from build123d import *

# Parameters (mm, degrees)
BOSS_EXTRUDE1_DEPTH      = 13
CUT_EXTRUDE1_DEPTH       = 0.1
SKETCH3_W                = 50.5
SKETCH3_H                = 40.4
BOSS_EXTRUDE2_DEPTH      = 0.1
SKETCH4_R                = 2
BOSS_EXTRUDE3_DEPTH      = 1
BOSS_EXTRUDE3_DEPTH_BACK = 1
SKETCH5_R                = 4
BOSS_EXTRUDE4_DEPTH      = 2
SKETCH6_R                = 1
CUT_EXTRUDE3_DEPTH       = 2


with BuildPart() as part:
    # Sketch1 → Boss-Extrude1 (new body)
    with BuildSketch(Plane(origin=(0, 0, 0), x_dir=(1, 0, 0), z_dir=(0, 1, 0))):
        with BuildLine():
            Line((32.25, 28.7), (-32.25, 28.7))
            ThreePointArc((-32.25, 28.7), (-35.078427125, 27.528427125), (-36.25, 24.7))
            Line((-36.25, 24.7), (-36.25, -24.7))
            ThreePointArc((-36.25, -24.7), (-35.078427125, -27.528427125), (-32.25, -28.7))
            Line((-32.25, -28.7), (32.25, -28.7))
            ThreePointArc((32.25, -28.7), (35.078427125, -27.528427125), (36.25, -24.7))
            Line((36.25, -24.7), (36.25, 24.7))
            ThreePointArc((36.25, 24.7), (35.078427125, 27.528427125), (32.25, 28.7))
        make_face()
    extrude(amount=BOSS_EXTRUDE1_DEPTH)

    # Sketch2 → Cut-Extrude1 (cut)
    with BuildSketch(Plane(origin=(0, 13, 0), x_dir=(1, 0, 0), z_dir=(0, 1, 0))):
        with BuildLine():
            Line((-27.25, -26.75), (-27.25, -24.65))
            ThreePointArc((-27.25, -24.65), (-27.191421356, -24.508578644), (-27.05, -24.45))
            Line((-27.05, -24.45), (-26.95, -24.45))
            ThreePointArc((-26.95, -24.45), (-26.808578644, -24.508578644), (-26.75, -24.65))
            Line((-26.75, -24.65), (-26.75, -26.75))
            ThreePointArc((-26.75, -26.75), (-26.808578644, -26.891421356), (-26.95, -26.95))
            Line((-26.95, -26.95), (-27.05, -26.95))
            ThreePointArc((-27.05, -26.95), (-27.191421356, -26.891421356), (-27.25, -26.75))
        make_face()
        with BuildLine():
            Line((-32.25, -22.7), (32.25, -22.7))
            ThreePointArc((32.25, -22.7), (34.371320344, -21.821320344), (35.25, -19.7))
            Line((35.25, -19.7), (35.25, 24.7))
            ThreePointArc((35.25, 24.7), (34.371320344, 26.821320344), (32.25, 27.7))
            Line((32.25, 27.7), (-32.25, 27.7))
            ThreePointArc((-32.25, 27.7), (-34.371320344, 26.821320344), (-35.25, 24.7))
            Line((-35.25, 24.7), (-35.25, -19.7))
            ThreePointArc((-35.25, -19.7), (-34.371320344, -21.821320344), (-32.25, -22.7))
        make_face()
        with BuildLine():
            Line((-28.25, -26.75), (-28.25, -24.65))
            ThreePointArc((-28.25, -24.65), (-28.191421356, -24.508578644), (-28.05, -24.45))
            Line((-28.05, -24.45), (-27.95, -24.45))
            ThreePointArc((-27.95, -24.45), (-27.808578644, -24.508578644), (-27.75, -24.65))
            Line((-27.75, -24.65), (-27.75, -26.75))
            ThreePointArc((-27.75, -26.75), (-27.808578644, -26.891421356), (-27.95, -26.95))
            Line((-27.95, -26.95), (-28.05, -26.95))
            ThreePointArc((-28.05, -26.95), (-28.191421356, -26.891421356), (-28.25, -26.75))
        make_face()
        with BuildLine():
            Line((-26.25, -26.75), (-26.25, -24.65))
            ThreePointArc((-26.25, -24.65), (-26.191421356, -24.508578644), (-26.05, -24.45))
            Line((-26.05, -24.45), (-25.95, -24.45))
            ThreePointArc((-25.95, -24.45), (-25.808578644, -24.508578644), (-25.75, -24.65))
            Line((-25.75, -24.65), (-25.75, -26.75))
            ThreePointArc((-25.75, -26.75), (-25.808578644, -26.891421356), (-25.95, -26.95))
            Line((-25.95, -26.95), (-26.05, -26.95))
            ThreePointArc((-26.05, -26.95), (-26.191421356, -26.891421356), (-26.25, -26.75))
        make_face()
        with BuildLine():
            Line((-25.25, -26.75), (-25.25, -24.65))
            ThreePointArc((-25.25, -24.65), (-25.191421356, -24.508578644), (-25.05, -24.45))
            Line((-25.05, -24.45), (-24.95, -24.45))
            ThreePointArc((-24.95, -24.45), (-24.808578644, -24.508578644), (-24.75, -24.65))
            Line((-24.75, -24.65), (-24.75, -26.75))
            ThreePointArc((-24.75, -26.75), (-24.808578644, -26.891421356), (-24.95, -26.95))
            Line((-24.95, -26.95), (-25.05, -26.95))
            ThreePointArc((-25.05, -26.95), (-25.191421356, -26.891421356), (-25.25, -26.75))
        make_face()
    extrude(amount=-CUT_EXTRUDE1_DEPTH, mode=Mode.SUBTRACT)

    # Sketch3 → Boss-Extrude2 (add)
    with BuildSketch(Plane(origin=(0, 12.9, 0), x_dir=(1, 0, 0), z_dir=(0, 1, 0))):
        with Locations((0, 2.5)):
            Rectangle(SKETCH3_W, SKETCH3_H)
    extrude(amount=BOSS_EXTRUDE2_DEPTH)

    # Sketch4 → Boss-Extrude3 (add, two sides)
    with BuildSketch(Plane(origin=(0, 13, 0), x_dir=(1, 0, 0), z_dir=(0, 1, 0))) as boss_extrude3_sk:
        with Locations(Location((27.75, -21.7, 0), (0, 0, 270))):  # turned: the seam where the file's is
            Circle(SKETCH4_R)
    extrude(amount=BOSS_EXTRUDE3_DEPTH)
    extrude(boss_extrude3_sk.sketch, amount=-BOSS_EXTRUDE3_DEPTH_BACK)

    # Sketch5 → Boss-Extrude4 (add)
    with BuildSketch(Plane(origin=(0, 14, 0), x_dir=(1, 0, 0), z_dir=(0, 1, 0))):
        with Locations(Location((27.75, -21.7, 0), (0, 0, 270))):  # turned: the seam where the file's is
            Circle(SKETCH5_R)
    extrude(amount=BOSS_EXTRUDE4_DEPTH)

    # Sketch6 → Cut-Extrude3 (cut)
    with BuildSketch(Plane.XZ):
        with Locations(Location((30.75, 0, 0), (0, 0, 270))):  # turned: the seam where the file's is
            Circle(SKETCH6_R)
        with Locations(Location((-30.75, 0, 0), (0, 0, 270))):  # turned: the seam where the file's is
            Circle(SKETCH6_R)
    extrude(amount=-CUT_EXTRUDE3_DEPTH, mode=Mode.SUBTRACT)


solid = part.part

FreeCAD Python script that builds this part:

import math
import FreeCAD as App
import Part
import Sketcher
from FreeCAD import Vector
Q = App.Units.Quantity


def add_polygon(sketch, points):
    """Adds a closed chain of lines whose ends are joined by coincident constraints."""
    first, n = sketch.GeometryCount, len(points)
    for a, b in zip(points, points[1:] + points[:1]):
        sketch.addGeometry(Part.LineSegment(App.Vector(*a, 0), App.Vector(*b, 0)), False)
    for i in range(n):
        sketch.addConstraint(Sketcher.Constraint("Coincident", first + i, 2, first + (i + 1) % n, 1))

doc = App.newDocument("Part")
params = doc.addObject("Spreadsheet::Sheet", "Params")
for row, (alias, value) in enumerate([
    ("sketch1_radius", "4 mm"),
    ("sketch1_width", "64.5 mm"),
    ("sketch1_height", "49.4 mm"),
    ("pad1_length", "13 mm"),
    ("sketch2_radius", "3 mm"),
    ("sketch2_radius2", "0.2 mm"),
    ("sketch2_width", "0.1 mm"),
    ("sketch2_width2", "64.5 mm"),
    ("sketch2_height", "2.1 mm"),
    ("pocket1_length", "0.1 mm"),
    ("sketch3_width", "50.5 mm"),
    ("sketch3_height", "40.4 mm"),
    ("pad2_length", "0.1 mm"),
    ("sketch4_diameter", "4 mm"),
    ("pad3_length", "1 mm"),
    ("pad3_length2", "1 mm"),
    ("sketch5_diameter", "8 mm"),
    ("pad4_length", "2 mm"),
    ("sketch6_diameter", "2 mm"),
    ("pocket2_length", "2 mm"),
], start=1):
    params.set(f"A{row}", alias)
    params.set(f"B{row}", "=" + value)
    params.setAlias(f"B{row}", alias)

body = doc.addObject("PartDesign::Body", "Body")

# Sketch on XZ plane
sketch1 = body.newObject("Sketcher::SketchObject", "Sketch")
sketch1.AttachmentSupport = (doc.getObject("XZ_Plane"), [""])
sketch1.MapMode = "FlatFace"
sketch1.addGeometry([
    Part.LineSegment(Vector(32.2, -28.7, 0), Vector(-32.2, -28.7, 0)),  # 0
    Part.ArcOfCircle(Part.Circle(Vector(-32.3, -24.7, 0), Vector(0, 0, 1), 4), math.radians(180), math.radians(270)),  # 1
    Part.LineSegment(Vector(-36.2, -24.7, 0), Vector(-36.2, 24.7, 0)),  # 2
    Part.ArcOfCircle(Part.Circle(Vector(-32.3, 24.7, 0), Vector(0, 0, 1), 4), math.radians(90), math.radians(180)),  # 3
    Part.LineSegment(Vector(-32.2, 28.7, 0), Vector(32.2, 28.7, 0)),  # 4
    Part.ArcOfCircle(Part.Circle(Vector(32.3, 24.7, 0), Vector(0, 0, 1), 4), math.radians(0), math.radians(90)),  # 5
    Part.LineSegment(Vector(36.2, 24.7, 0), Vector(36.2, -24.7, 0)),  # 6
    Part.ArcOfCircle(Part.Circle(Vector(32.3, -24.7, 0), Vector(0, 0, 1), 4), math.radians(-90), math.radians(0)),  # 7
], False)
sketch1.addConstraint([
    Sketcher.Constraint("Tangent", 0, 2, 1, 2),
    Sketcher.Constraint("Tangent", 1, 1, 2, 1),
    Sketcher.Constraint("Tangent", 2, 2, 3, 2),
    Sketcher.Constraint("Tangent", 3, 1, 4, 1),
    Sketcher.Constraint("Tangent", 4, 2, 5, 2),
    Sketcher.Constraint("Tangent", 5, 1, 6, 1),
    Sketcher.Constraint("Tangent", 6, 2, 7, 2),
    Sketcher.Constraint("Tangent", 7, 1, 0, 1),
    Sketcher.Constraint("Horizontal", 0),
    Sketcher.Constraint("Vertical", 2),
    Sketcher.Constraint("Horizontal", 4),
    Sketcher.Constraint("Vertical", 6),
    Sketcher.Constraint("Equal", 1, 3),
    Sketcher.Constraint("Equal", 3, 5),
    Sketcher.Constraint("Equal", 5, 7),
    Sketcher.Constraint("Symmetric", 1, 3, 5, 3, -1, 1),
    Sketcher.Constraint("Radius", 1, Q("4 mm")),
    Sketcher.Constraint("DistanceX", 0, 2, 0, 1, Q("64.5 mm")),
    Sketcher.Constraint("DistanceY", 2, 1, 2, 2, Q("49.4 mm")),
])
sketch1.setExpression("Constraints[16]", "Params.sketch1_radius")
sketch1.setExpression("Constraints[17]", "Params.sketch1_width")
sketch1.setExpression("Constraints[18]", "Params.sketch1_height")
pad1 = body.newObject("PartDesign::Pad", "Pad")
pad1.Profile = sketch1
pad1.setExpression("Length", "Params.pad1_length")
pad1.Reversed = True

# Sketch on XZ plane
sketch2 = body.newObject("Sketcher::SketchObject", "Sketch001")
sketch2.AttachmentSupport = (doc.getObject("XZ_Plane"), [""])
sketch2.MapMode = "FlatFace"
sketch2.AttachmentOffset = App.Placement(Vector(0, 0, -13), App.Rotation())
sketch2.addGeometry([
    Part.LineSegment(Vector(-27.25, 24.65, 0), Vector(-27.25, 26.75, 0)),  # 0
    Part.ArcOfCircle(Part.Circle(Vector(-27.05, 26.75, 0), Vector(0, 0, 1), 0.2), math.radians(90), math.radians(180)),  # 1
    Part.LineSegment(Vector(-27.05, 26.95, 0), Vector(-26.95, 26.95, 0)),  # 2
    Part.ArcOfCircle(Part.Circle(Vector(-26.95, 26.75, 0), Vector(0, 0, 1), 0.2), math.radians(0), math.radians(90)),  # 3
    Part.LineSegment(Vector(-26.75, 26.75, 0), Vector(-26.75, 24.65, 0)),  # 4
    Part.ArcOfCircle(Part.Circle(Vector(-26.95, 24.65, 0), Vector(0, 0, 1), 0.2), math.radians(-90), math.radians(0)),  # 5
    Part.LineSegment(Vector(-26.95, 24.45, 0), Vector(-27.05, 24.45, 0)),  # 6
    Part.ArcOfCircle(Part.Circle(Vector(-27.05, 24.65, 0), Vector(0, 0, 1), 0.2), math.radians(-180), math.radians(-90)),  # 7
    Part.LineSegment(Vector(-32.25, 22.7, 0), Vector(32.25, 22.7, 0)),  # 8
    Part.ArcOfCircle(Part.Circle(Vector(32.25, 19.7, 0), Vector(0, 0, 1), 3), math.radians(0), math.radians(90)),  # 9
    Part.LineSegment(Vector(35.25, 19.7, 0), Vector(35.25, -24.7, 0)),  # 10
    Part.ArcOfCircle(Part.Circle(Vector(32.25, -24.7, 0), Vector(0, 0, 1), 3), math.radians(-90), math.radians(0)),  # 11
    Part.LineSegment(Vector(32.25, -27.7, 0), Vector(-32.25, -27.7, 0)),  # 12
    Part.ArcOfCircle(Part.Circle(Vector(-32.25, -24.7, 0), Vector(0, 0, 1), 3), math.radians(180), math.radians(270)),  # 13
    Part.LineSegment(Vector(-35.25, -24.7, 0), Vector(-35.25, 19.7, 0)),  # 14
    Part.ArcOfCircle(Part.Circle(Vector(-32.25, 19.7, 0), Vector(0, 0, 1), 3), math.radians(90), math.radians(180)),  # 15
    Part.LineSegment(Vector(-28.25, 24.65, 0), Vector(-28.25, 26.75, 0)),  # 16
    Part.ArcOfCircle(Part.Circle(Vector(-28.05, 26.75, 0), Vector(0, 0, 1), 0.2), math.radians(90), math.radians(180)),  # 17
    Part.LineSegment(Vector(-28.05, 26.95, 0), Vector(-27.95, 26.95, 0)),  # 18
    Part.ArcOfCircle(Part.Circle(Vector(-27.95, 26.75, 0), Vector(0, 0, 1), 0.2), math.radians(0), math.radians(90)),  # 19
    Part.LineSegment(Vector(-27.75, 26.75, 0), Vector(-27.75, 24.65, 0)),  # 20
    Part.ArcOfCircle(Part.Circle(Vector(-27.95, 24.65, 0), Vector(0, 0, 1), 0.2), math.radians(-90), math.radians(0)),  # 21
    Part.LineSegment(Vector(-27.95, 24.45, 0), Vector(-28.05, 24.45, 0)),  # 22
    Part.ArcOfCircle(Part.Circle(Vector(-28.05, 24.65, 0), Vector(0, 0, 1), 0.2), math.radians(-180), math.radians(-90)),  # 23
    Part.LineSegment(Vector(-26.25, 24.65, 0), Vector(-26.25, 26.75, 0)),  # 24
    Part.ArcOfCircle(Part.Circle(Vector(-26.05, 26.75, 0), Vector(0, 0, 1), 0.2), math.radians(90), math.radians(180)),  # 25
    Part.LineSegment(Vector(-26.05, 26.95, 0), Vector(-25.95, 26.95, 0)),  # 26
    Part.ArcOfCircle(Part.Circle(Vector(-25.95, 26.75, 0), Vector(0, 0, 1), 0.2), math.radians(0), math.radians(90)),  # 27
    Part.LineSegment(Vector(-25.75, 26.75, 0), Vector(-25.75, 24.65, 0)),  # 28
    Part.ArcOfCircle(Part.Circle(Vector(-25.95, 24.65, 0), Vector(0, 0, 1), 0.2), math.radians(-90), math.radians(0)),  # 29
    Part.LineSegment(Vector(-25.95, 24.45, 0), Vector(-26.05, 24.45, 0)),  # 30
    Part.ArcOfCircle(Part.Circle(Vector(-26.05, 24.65, 0), Vector(0, 0, 1), 0.2), math.radians(-180), math.radians(-90)),  # 31
    Part.LineSegment(Vector(-25.25, 24.65, 0), Vector(-25.25, 26.75, 0)),  # 32
    Part.ArcOfCircle(Part.Circle(Vector(-25.05, 26.75, 0), Vector(0, 0, 1), 0.2), math.radians(90), math.radians(180)),  # 33
    Part.LineSegment(Vector(-25.05, 26.95, 0), Vector(-24.95, 26.95, 0)),  # 34
    Part.ArcOfCircle(Part.Circle(Vector(-24.95, 26.75, 0), Vector(0, 0, 1), 0.2), math.radians(0), math.radians(90)),  # 35
    Part.LineSegment(Vector(-24.75, 26.75, 0), Vector(-24.75, 24.65, 0)),  # 36
    Part.ArcOfCircle(Part.Circle(Vector(-24.95, 24.65, 0), Vector(0, 0, 1), 0.2), math.radians(-90), math.radians(0)),  # 37
    Part.LineSegment(Vector(-24.95, 24.45, 0), Vector(-25.05, 24.45, 0)),  # 38
    Part.ArcOfCircle(Part.Circle(Vector(-25.05, 24.65, 0), Vector(0, 0, 1), 0.2), math.radians(-180), math.radians(-90)),  # 39
], False)
sketch2.addConstraint([
    Sketcher.Constraint("Tangent", 0, 2, 1, 2),
    Sketcher.Constraint("Tangent", 1, 1, 2, 1),
    Sketcher.Constraint("Tangent", 2, 2, 3, 2),
    Sketcher.Constraint("Tangent", 3, 1, 4, 1),
    Sketcher.Constraint("Tangent", 4, 2, 5, 2),
    Sketcher.Constraint("Tangent", 5, 1, 6, 1),
    Sketcher.Constraint("Tangent", 6, 2, 7, 2),
    Sketcher.Constraint("Tangent", 7, 1, 0, 1),
    Sketcher.Constraint("Tangent", 8, 2, 9, 2),
    Sketcher.Constraint("Tangent", 9, 1, 10, 1),
    Sketcher.Constraint("Tangent", 10, 2, 11, 2),
    Sketcher.Constraint("Tangent", 11, 1, 12, 1),
    Sketcher.Constraint("Tangent", 12, 2, 13, 2),
    Sketcher.Constraint("Tangent", 13, 1, 14, 1),
    Sketcher.Constraint("Tangent", 14, 2, 15, 2),
    Sketcher.Constraint("Tangent", 15, 1, 8, 1),
    Sketcher.Constraint("Tangent", 16, 2, 17, 2),
    Sketcher.Constraint("Tangent", 17, 1, 18, 1),
    Sketcher.Constraint("Tangent", 18, 2, 19, 2),
    Sketcher.Constraint("Tangent", 19, 1, 20, 1),
    Sketcher.Constraint("Tangent", 20, 2, 21, 2),
    Sketcher.Constraint("Tangent", 21, 1, 22, 1),
    Sketcher.Constraint("Tangent", 22, 2, 23, 2),
    Sketcher.Constraint("Tangent", 23, 1, 16, 1),
    Sketcher.Constraint("Tangent", 24, 2, 25, 2),
    Sketcher.Constraint("Tangent", 25, 1, 26, 1),
    Sketcher.Constraint("Tangent", 26, 2, 27, 2),
    Sketcher.Constraint("Tangent", 27, 1, 28, 1),
    Sketcher.Constraint("Tangent", 28, 2, 29, 2),
    Sketcher.Constraint("Tangent", 29, 1, 30, 1),
    Sketcher.Constraint("Tangent", 30, 2, 31, 2),
    Sketcher.Constraint("Tangent", 31, 1, 24, 1),
    Sketcher.Constraint("Tangent", 32, 2, 33, 2),
    Sketcher.Constraint("Tangent", 33, 1, 34, 1),
    Sketcher.Constraint("Tangent", 34, 2, 35, 2),
    Sketcher.Constraint("Tangent", 35, 1, 36, 1),
    Sketcher.Constraint("Tangent", 36, 2, 37, 2),
    Sketcher.Constraint("Tangent", 37, 1, 38, 1),
    Sketcher.Constraint("Tangent", 38, 2, 39, 2),
    Sketcher.Constraint("Tangent", 39, 1, 32, 1),
    Sketcher.Constraint("Vertical", 0),
    Sketcher.Constraint("Horizontal", 2),
    Sketcher.Constraint("Vertical", 4),
    Sketcher.Constraint("Horizontal", 6),
    Sketcher.Constraint("Horizontal", 8),
    Sketcher.Constraint("Vertical", 10),
    Sketcher.Constraint("Horizontal", 12),
    Sketcher.Constraint("Vertical", 14),
    Sketcher.Constraint("Vertical", 16),
    Sketcher.Constraint("Horizontal", 18),
    Sketcher.Constraint("Vertical", 20),
    Sketcher.Constraint("Horizontal", 22),
    Sketcher.Constraint("Vertical", 24),
    Sketcher.Constraint("Horizontal", 26),
    Sketcher.Constraint("Vertical", 28),
    Sketcher.Constraint("Horizontal", 30),
    Sketcher.Constraint("Vertical", 32),
    Sketcher.Constraint("Horizontal", 34),
    Sketcher.Constraint("Vertical", 36),
    Sketcher.Constraint("Horizontal", 38),
    Sketcher.Constraint("Equal", 1, 3),
    Sketcher.Constraint("Equal", 3, 5),
    Sketcher.Constraint("Equal", 5, 7),
    Sketcher.Constraint("Equal", 9, 11),
    Sketcher.Constraint("Equal", 11, 13),
    Sketcher.Constraint("Equal", 13, 15),
    Sketcher.Constraint("Equal", 7, 17),
    Sketcher.Constraint("Equal", 17, 19),
    Sketcher.Constraint("Equal", 19, 21),
    Sketcher.Constraint("Equal", 21, 23),
    Sketcher.Constraint("Equal", 23, 25),
    Sketcher.Constraint("Equal", 25, 27),
    Sketcher.Constraint("Equal", 27, 29),
    Sketcher.Constraint("Equal", 29, 31),
    Sketcher.Constraint("Equal", 31, 33),
    Sketcher.Constraint("Equal", 33, 35),
    Sketcher.Constraint("Equal", 35, 37),
    Sketcher.Constraint("Equal", 37, 39),
    Sketcher.Constraint("Horizontal", 3, 3, 17, 3),
    Sketcher.Constraint("Horizontal", 7, 3, 21, 3),
    Sketcher.Constraint("Horizontal", 19, 3, 25, 3),
    Sketcher.Constraint("Horizontal", 23, 3, 29, 3),
    Sketcher.Constraint("Horizontal", 27, 3, 33, 3),
    Sketcher.Constraint("Horizontal", 31, 3, 37, 3),
    Sketcher.Constraint("Equal", 6, 18),
    Sketcher.Constraint("Equal", 22, 26),
    Sketcher.Constraint("Equal", 30, 34),
    Sketcher.Constraint("Radius", 9, Q("3 mm")),
    Sketcher.Constraint("Radius", 1, Q("0.2 mm")),
    Sketcher.Constraint("DistanceX", 2, 1, 2, 2, Q("0.1 mm")),
    Sketcher.Constraint("DistanceX", 8, 1, 8, 2, Q("64.5 mm")),
    Sketcher.Constraint("DistanceY", 0, 1, 0, 2, Q("2.1 mm")),
    Sketcher.Constraint("DistanceY", 10, 2, 10, 1, Q("44.4 mm")),
    Sketcher.Constraint("DistanceX", 17, 3, 1, 3, Q("1 mm")),
    Sketcher.Constraint("DistanceX", 1, 3, 25, 3, Q("1 mm")),
    Sketcher.Constraint("DistanceX", 25, 3, 33, 3, Q("1 mm")),
    Sketcher.Constraint("DistanceX", 14, 2, 7, 1, Q("8 mm")),
    Sketcher.Constraint("DistanceY", -1, 1, 9, 3, Q("19.7 mm")),
    Sketcher.Constraint("DistanceX", 1, 3, -1, 1, Q("27.05 mm")),
    Sketcher.Constraint("DistanceY", -1, 1, 1, 3, Q("26.75 mm")),
])
sketch2.setExpression("Constraints[87]", "Params.sketch2_radius")
sketch2.setExpression("Constraints[88]", "Params.sketch2_radius2")
sketch2.setExpression("Constraints[89]", "Params.sketch2_width")
sketch2.setExpression("Constraints[90]", "Params.sketch2_width2")
sketch2.setExpression("Constraints[91]", "Params.sketch2_height")
pocket1 = body.newObject("PartDesign::Pocket", "Pocket")
pocket1.Profile = sketch2
pocket1.setExpression("Length", "Params.pocket1_length")
pocket1.Reversed = True

# Sketch on XZ plane
sketch3 = body.newObject("Sketcher::SketchObject", "Sketch002")
sketch3.AttachmentSupport = (doc.getObject("XZ_Plane"), [""])
sketch3.MapMode = "FlatFace"
sketch3.AttachmentOffset = App.Placement(Vector(0, 0, -12.9), App.Rotation())
add_polygon(sketch3, [(-25, -23), (-25, 18), (25, 18), (25, -23)])  # lines 0-3
sketch3.addConstraint([
    Sketcher.Constraint("Vertical", 0),
    Sketcher.Constraint("Horizontal", 1),
    Sketcher.Constraint("Vertical", 2),
    Sketcher.Constraint("Horizontal", 3),
    Sketcher.Constraint("DistanceX", 1, 1, 1, 2, Q("50.5 mm")),
    Sketcher.Constraint("DistanceY", 0, 1, 0, 2, Q("40.4 mm")),
    Sketcher.Constraint("DistanceY", -1, 1, 0, 2, Q("17.7 mm")),
    Sketcher.Constraint("DistanceX", 0, 2, -1, 1, Q("25.25 mm")),
])
sketch3.setExpression("Constraints[8]", "Params.sketch3_width")
sketch3.setExpression("Constraints[9]", "Params.sketch3_height")
pad2 = body.newObject("PartDesign::Pad", "Pad001")
pad2.Profile = sketch3
pad2.setExpression("Length", "Params.pad2_length")
pad2.Reversed = True

# Sketch on XZ plane
sketch4 = body.newObject("Sketcher::SketchObject", "Sketch003")
sketch4.AttachmentSupport = (doc.getObject("XZ_Plane"), [""])
sketch4.MapMode = "FlatFace"
sketch4.AttachmentOffset = App.Placement(Vector(0, 0, -13), App.Rotation())
sketch4.addGeometry(Part.Circle(Vector(27.8, 21.7, 0), Vector(0, 0, 1), 2), False)
sketch4.addConstraint([
    Sketcher.Constraint("Diameter", 0, Q("4 mm")),
    Sketcher.Constraint("DistanceY", -1, 1, 0, 3, Q("21.7 mm")),
    Sketcher.Constraint("DistanceX", -1, 1, 0, 3, Q("27.75 mm")),
])
sketch4.setExpression("Constraints[0]", "Params.sketch4_diameter")
pad3 = body.newObject("PartDesign::Pad", "Pad002")
pad3.Profile = sketch4
pad3.Type = "TwoLengths"
pad3.setExpression("Length", "Params.pad3_length")
pad3.setExpression("Length2", "Params.pad3_length2")
pad3.Reversed = True

# Sketch on XZ plane
sketch5 = body.newObject("Sketcher::SketchObject", "Sketch004")
sketch5.AttachmentSupport = (doc.getObject("XZ_Plane"), [""])
sketch5.MapMode = "FlatFace"
sketch5.AttachmentOffset = App.Placement(Vector(0, 0, -14), App.Rotation())
sketch5.addGeometry(Part.Circle(Vector(27.8, 21.7, 0), Vector(0, 0, 1), 4), False)
sketch5.addConstraint([
    Sketcher.Constraint("Diameter", 0, Q("8 mm")),
    Sketcher.Constraint("DistanceY", -1, 1, 0, 3, Q("21.7 mm")),
    Sketcher.Constraint("DistanceX", -1, 1, 0, 3, Q("27.75 mm")),
])
sketch5.setExpression("Constraints[0]", "Params.sketch5_diameter")
pad4 = body.newObject("PartDesign::Pad", "Pad003")
pad4.Profile = sketch5
pad4.setExpression("Length", "Params.pad4_length")
pad4.Reversed = True

# Sketch on XZ plane
sketch6 = body.newObject("Sketcher::SketchObject", "Sketch005")
sketch6.AttachmentSupport = (doc.getObject("XZ_Plane"), [""])
sketch6.MapMode = "FlatFace"
sketch6.addGeometry([
    Part.Circle(Vector(30.8, 0, 0), Vector(0, 0, 1), 1),
    Part.Circle(Vector(-30.8, 0, 0), Vector(0, 0, 1), 1),
], False)
sketch6.addConstraint([
    Sketcher.Constraint("Equal", 0, 1),
    Sketcher.Constraint("Symmetric", 0, 3, 1, 3, -1, 1),
    Sketcher.Constraint("PointOnObject", 0, 3, -1),
    Sketcher.Constraint("Diameter", 0, Q("2 mm")),
    Sketcher.Constraint("DistanceX", 1, 3, 0, 3, Q("61.5 mm")),
])
sketch6.setExpression("Constraints[3]", "Params.sketch6_diameter")
pocket2 = body.newObject("PartDesign::Pocket", "Pocket001")
pocket2.Profile = sketch6
pocket2.setExpression("Length", "Params.pocket2_length")

doc.recompute()
